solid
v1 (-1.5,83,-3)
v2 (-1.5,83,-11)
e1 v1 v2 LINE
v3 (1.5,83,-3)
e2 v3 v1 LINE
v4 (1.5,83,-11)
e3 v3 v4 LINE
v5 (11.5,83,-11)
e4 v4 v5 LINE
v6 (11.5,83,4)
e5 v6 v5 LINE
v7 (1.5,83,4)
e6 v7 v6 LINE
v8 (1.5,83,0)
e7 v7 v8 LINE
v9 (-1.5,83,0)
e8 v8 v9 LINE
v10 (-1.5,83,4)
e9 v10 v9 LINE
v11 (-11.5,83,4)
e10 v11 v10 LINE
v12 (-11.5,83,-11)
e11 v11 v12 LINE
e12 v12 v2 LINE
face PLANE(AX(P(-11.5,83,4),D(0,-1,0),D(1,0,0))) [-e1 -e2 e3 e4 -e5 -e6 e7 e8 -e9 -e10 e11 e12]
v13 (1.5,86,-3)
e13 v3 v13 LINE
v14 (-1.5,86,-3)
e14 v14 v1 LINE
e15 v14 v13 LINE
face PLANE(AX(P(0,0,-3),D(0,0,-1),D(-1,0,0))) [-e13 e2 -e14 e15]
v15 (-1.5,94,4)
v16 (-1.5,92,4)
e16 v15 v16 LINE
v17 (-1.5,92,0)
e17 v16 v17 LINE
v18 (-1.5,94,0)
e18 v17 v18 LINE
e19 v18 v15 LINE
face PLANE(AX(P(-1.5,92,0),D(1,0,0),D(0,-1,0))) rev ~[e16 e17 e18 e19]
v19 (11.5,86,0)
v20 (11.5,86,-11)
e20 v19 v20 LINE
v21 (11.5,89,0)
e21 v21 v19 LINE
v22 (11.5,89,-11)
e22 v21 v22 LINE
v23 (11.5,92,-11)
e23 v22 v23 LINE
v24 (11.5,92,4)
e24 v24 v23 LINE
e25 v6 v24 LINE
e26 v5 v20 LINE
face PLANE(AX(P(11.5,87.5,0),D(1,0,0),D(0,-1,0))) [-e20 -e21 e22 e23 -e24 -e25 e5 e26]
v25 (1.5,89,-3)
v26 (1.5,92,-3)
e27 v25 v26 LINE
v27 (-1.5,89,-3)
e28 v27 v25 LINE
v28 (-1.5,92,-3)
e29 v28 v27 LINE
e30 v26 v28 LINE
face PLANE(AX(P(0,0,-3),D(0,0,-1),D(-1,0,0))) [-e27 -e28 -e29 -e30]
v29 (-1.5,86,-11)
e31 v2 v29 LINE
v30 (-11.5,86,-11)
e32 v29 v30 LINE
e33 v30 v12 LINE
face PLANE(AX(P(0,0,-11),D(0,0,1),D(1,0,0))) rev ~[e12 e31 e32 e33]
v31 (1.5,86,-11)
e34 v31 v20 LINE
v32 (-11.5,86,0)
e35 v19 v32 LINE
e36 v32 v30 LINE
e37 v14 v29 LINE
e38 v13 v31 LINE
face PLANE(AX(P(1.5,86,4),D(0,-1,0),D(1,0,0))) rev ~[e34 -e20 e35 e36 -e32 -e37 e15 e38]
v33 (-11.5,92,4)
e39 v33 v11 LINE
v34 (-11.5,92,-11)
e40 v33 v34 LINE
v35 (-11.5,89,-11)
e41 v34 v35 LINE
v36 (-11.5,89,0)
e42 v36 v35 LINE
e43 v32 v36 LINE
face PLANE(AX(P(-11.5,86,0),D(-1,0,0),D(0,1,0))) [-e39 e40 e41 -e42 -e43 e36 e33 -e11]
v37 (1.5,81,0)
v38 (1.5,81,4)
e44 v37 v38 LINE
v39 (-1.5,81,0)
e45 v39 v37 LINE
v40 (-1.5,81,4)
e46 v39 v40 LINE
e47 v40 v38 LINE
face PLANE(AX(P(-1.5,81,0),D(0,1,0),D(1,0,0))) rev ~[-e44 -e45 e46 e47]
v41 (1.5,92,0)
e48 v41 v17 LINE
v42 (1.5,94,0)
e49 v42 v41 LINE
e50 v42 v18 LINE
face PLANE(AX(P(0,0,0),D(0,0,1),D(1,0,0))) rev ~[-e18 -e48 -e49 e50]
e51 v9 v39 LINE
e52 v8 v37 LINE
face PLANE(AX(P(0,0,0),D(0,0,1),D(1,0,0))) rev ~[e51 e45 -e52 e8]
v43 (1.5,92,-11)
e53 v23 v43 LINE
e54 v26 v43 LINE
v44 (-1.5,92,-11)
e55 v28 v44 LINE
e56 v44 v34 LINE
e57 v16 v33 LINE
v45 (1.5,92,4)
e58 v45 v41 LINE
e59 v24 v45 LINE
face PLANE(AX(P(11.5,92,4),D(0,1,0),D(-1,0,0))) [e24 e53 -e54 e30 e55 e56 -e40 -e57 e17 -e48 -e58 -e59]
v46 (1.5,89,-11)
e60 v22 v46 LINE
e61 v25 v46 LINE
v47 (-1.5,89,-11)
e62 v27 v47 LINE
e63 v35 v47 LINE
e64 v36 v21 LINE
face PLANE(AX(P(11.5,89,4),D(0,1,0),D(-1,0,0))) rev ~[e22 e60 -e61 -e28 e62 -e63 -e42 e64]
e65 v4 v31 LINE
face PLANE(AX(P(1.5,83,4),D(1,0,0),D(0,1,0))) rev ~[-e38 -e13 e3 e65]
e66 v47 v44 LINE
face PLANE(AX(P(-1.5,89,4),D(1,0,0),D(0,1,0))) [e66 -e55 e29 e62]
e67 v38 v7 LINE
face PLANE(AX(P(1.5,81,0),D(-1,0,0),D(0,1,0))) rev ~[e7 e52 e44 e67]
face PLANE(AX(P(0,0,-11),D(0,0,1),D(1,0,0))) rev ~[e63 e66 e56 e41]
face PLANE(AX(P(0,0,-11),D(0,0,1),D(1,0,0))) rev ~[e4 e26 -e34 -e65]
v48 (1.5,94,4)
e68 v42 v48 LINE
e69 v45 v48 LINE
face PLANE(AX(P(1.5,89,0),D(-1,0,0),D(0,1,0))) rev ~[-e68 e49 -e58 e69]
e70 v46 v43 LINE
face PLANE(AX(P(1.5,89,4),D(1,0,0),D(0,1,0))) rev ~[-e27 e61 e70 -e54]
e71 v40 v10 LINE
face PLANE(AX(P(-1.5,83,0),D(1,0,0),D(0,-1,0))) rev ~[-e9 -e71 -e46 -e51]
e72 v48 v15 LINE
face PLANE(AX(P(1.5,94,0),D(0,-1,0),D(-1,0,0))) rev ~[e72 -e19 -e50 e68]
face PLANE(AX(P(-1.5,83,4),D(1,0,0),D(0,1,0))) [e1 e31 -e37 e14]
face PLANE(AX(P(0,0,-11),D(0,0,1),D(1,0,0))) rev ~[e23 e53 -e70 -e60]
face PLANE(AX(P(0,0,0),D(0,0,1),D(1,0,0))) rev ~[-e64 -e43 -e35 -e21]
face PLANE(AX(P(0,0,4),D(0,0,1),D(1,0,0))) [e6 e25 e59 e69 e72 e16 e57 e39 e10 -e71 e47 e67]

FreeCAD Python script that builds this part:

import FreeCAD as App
import Part
import Sketcher

V = App.Vector
Q = App.Units.Quantity


def add_polygon(sketch, points):
    """Adds a closed chain of lines whose ends are joined by coincident constraints."""
    first, n = sketch.GeometryCount, len(points)
    for a, b in zip(points, points[1:] + points[:1]):
        sketch.addGeometry(Part.LineSegment(App.Vector(*a, 0), App.Vector(*b, 0)), False)
    for i in range(n):
        sketch.addConstraint(Sketcher.Constraint("Coincident", first + i, 2, first + (i + 1) % n, 1))

doc = App.newDocument("Part")
body = doc.addObject("PartDesign::Body", "Body")

# Sketch on XY plane
sketch1 = body.newObject("Sketcher::SketchObject", "Sketch")
sketch1.AttachmentSupport = (doc.getObject("XY_Plane"), [""])
sketch1.MapMode = "FlatFace"
add_polygon(sketch1, [(-1.5, 81), (1.5, 81), (1.5, 86), (11.5, 86), (11.5, 89), (1.5, 89), (1.5, 94), (-1.5, 94), (-1.5, 89), (-11.5, 89), (-11.5, 86), (-1.5, 86)])  # lines 0-11
sketch1.addConstraint(Sketcher.Constraint("Horizontal", 0))
sketch1.addConstraint(Sketcher.Constraint("Vertical", 1))
sketch1.addConstraint(Sketcher.Constraint("Horizontal", 2))
sketch1.addConstraint(Sketcher.Constraint("Vertical", 3))
sketch1.addConstraint(Sketcher.Constraint("Horizontal", 4))
sketch1.addConstraint(Sketcher.Constraint("Vertical", 5))
sketch1.addConstraint(Sketcher.Constraint("Horizontal", 6))
sketch1.addConstraint(Sketcher.Constraint("Vertical", 7))
sketch1.addConstraint(Sketcher.Constraint("Horizontal", 8))
sketch1.addConstraint(Sketcher.Constraint("Vertical", 9))
sketch1.addConstraint(Sketcher.Constraint("Horizontal", 10))
sketch1.addConstraint(Sketcher.Constraint("Vertical", 11))
sketch1.addConstraint(Sketcher.Constraint("Symmetric", 4, 2, 7, 2, -2))
sketch1.addConstraint(Sketcher.Constraint("Symmetric", 2, 2, 9, 2, -2))
sketch1.addConstraint(Sketcher.Constraint("Vertical", 1, 2, 4, 2))
sketch1.addConstraint(Sketcher.Constraint("Vertical", 7, 2, 10, 2))
sketch1.addConstraint(Sketcher.Constraint("Equal", 6, 3))
sketch1.addConstraint(Sketcher.Constraint("Equal", 1, 5))
sketch1.addConstraint(Sketcher.Constraint("DistanceX", 0, 1, 0, 2, Q("3 mm")))
sketch1.addConstraint(Sketcher.Constraint("DistanceX", 2, 1, 2, 2, Q("10 mm")))
sketch1.addConstraint(Sketcher.Constraint("DistanceY", 1, 1, 1, 2, Q("5 mm")))
sketch1.addConstraint(Sketcher.Constraint("DistanceY", -1, 1, 0, 2, Q("81 mm")))
pad1 = body.newObject("PartDesign::Pad", "Pad")
pad1.Profile = sketch1
pad1.Length = 4

# Sketch on XY plane
sketch2 = body.newObject("Sketcher::SketchObject", "Sketch001")
sketch2.AttachmentSupport = (doc.getObject("XY_Plane"), [""])
sketch2.MapMode = "FlatFace"
sketch2.AttachmentOffset = App.Placement(V(0, 0, 4), App.Rotation())
add_polygon(sketch2, [(11.5, 89), (11.5, 92), (1.5, 92), (1.5, 89)])  # lines 0-3
add_polygon(sketch2, [(-1.5, 89), (-1.5, 92), (-11.5, 92), (-11.5, 89)])  # lines 4-7
add_polygon(sketch2, [(11.5, 83), (11.5, 86), (1.5, 86), (1.5, 83)])  # lines 8-11
add_polygon(sketch2, [(-1.5, 86), (-11.5, 86), (-11.5, 83), (-1.5, 83)])  # lines 12-15
sketch2.addConstraint(Sketcher.Constraint("Vertical", 0))
sketch2.addConstraint(Sketcher.Constraint("Horizontal", 1))
sketch2.addConstraint(Sketcher.Constraint("Vertical", 2))
sketch2.addConstraint(Sketcher.Constraint("Horizontal", 3))
sketch2.addConstraint(Sketcher.Constraint("Vertical", 4))
sketch2.addConstraint(Sketcher.Constraint("Horizontal", 5))
sketch2.addConstraint(Sketcher.Constraint("Vertical", 6))
sketch2.addConstraint(Sketcher.Constraint("Horizontal", 7))
sketch2.addConstraint(Sketcher.Constraint("Vertical", 8))
sketch2.addConstraint(Sketcher.Constraint("Horizontal", 9))
sketch2.addConstraint(Sketcher.Constraint("Vertical", 10))
sketch2.addConstraint(Sketcher.Constraint("Horizontal", 11))
sketch2.addConstraint(Sketcher.Constraint("Horizontal", 12))
sketch2.addConstraint(Sketcher.Constraint("Vertical", 13))
sketch2.addConstraint(Sketcher.Constraint("Horizontal", 14))
sketch2.addConstraint(Sketcher.Constraint("Vertical", 15))
sketch2.addConstraint(Sketcher.Constraint("Symmetric", 1, 2, 4, 2, -2))
sketch2.addConstraint(Sketcher.Constraint("Symmetric", 3, 2, 6, 2, -2))
sketch2.addConstraint(Sketcher.Constraint("Symmetric", 8, 2, 12, 2, -2))
sketch2.addConstraint(Sketcher.Constraint("Symmetric", 10, 2, 14, 2, -2))
sketch2.addConstraint(Sketcher.Constraint("Vertical", 3, 2, 8, 2))
sketch2.addConstraint(Sketcher.Constraint("Vertical", 2, 2, 9, 2))
sketch2.addConstraint(Sketcher.Constraint("Equal", 6, 8))
sketch2.addConstraint(Sketcher.Constraint("DistanceY", 0, 1, 0, 2, Q("3 mm")))
sketch2.addConstraint(Sketcher.Constraint("DistanceX", 4, 2, 1, 2, Q("3 mm")))
sketch2.addConstraint(Sketcher.Constraint("DistanceY", 8, 2, 3, 2, Q("3 mm")))
sketch2.addConstraint(Sketcher.Constraint("DistanceX", 1, 2, 1, 1, Q("10 mm")))
sketch2.addConstraint(Sketcher.Constraint("DistanceY", -1, 1, 0, 2, Q("92 mm")))
pad2 = body.newObject("PartDesign::Pad", "Pad001")
pad2.Profile = sketch2
pad2.Length = 15
pad2.Reversed = True

# Sketch on XY plane
sketch3 = body.newObject("Sketcher::SketchObject", "Sketch002")
sketch3.AttachmentSupport = (doc.getObject("XY_Plane"), [""])
sketch3.MapMode = "FlatFace"
add_polygon(sketch3, [(1.5, 92), (1.5, 89), (-1.5, 89), (-1.5, 92)])  # lines 0-3
add_polygon(sketch3, [(-1.5, 86), (1.5, 86), (1.5, 83), (-1.5, 83)])  # lines 4-7
sketch3.addConstraint(Sketcher.Constraint("Vertical", 0))
sketch3.addConstraint(Sketcher.Constraint("Horizontal", 1))
sketch3.addConstraint(Sketcher.Constraint("Vertical", 2))
sketch3.addConstraint(Sketcher.Constraint("Horizontal", 3))
sketch3.addConstraint(Sketcher.Constraint("Horizontal", 4))
sketch3.addConstraint(Sketcher.Constraint("Vertical", 5))
sketch3.addConstraint(Sketcher.Constraint("Horizontal", 6))
sketch3.addConstraint(Sketcher.Constraint("Vertical", 7))
sketch3.addConstraint(Sketcher.Constraint("Vertical", 3, 2, 4, 2))
sketch3.addConstraint(Sketcher.Constraint("Vertical", 2, 2, 6, 2))
sketch3.addConstraint(Sketcher.Constraint("Equal", 6, 0))
sketch3.addConstraint(Sketcher.Constraint("Equal", 2, 5))
sketch3.addConstraint(Sketcher.Constraint("DistanceX", 1, 2, 1, 1, Q("3 mm")))
sketch3.addConstraint(Sketcher.Constraint("DistanceY", 4, 2, 0, 2, Q("3 mm")))
sketch3.addConstraint(Sketcher.Constraint("DistanceY", -1, 1, 0, 2, Q("89 mm")))
sketch3.addConstraint(Sketcher.Constraint("DistanceX", -1, 1, 0, 2, Q("1.5 mm")))
pad3 = body.newObject("PartDesign::Pad", "Pad002")
pad3.Profile = sketch3
pad3.Length = 3
pad3.Reversed = True

doc.recompute()
